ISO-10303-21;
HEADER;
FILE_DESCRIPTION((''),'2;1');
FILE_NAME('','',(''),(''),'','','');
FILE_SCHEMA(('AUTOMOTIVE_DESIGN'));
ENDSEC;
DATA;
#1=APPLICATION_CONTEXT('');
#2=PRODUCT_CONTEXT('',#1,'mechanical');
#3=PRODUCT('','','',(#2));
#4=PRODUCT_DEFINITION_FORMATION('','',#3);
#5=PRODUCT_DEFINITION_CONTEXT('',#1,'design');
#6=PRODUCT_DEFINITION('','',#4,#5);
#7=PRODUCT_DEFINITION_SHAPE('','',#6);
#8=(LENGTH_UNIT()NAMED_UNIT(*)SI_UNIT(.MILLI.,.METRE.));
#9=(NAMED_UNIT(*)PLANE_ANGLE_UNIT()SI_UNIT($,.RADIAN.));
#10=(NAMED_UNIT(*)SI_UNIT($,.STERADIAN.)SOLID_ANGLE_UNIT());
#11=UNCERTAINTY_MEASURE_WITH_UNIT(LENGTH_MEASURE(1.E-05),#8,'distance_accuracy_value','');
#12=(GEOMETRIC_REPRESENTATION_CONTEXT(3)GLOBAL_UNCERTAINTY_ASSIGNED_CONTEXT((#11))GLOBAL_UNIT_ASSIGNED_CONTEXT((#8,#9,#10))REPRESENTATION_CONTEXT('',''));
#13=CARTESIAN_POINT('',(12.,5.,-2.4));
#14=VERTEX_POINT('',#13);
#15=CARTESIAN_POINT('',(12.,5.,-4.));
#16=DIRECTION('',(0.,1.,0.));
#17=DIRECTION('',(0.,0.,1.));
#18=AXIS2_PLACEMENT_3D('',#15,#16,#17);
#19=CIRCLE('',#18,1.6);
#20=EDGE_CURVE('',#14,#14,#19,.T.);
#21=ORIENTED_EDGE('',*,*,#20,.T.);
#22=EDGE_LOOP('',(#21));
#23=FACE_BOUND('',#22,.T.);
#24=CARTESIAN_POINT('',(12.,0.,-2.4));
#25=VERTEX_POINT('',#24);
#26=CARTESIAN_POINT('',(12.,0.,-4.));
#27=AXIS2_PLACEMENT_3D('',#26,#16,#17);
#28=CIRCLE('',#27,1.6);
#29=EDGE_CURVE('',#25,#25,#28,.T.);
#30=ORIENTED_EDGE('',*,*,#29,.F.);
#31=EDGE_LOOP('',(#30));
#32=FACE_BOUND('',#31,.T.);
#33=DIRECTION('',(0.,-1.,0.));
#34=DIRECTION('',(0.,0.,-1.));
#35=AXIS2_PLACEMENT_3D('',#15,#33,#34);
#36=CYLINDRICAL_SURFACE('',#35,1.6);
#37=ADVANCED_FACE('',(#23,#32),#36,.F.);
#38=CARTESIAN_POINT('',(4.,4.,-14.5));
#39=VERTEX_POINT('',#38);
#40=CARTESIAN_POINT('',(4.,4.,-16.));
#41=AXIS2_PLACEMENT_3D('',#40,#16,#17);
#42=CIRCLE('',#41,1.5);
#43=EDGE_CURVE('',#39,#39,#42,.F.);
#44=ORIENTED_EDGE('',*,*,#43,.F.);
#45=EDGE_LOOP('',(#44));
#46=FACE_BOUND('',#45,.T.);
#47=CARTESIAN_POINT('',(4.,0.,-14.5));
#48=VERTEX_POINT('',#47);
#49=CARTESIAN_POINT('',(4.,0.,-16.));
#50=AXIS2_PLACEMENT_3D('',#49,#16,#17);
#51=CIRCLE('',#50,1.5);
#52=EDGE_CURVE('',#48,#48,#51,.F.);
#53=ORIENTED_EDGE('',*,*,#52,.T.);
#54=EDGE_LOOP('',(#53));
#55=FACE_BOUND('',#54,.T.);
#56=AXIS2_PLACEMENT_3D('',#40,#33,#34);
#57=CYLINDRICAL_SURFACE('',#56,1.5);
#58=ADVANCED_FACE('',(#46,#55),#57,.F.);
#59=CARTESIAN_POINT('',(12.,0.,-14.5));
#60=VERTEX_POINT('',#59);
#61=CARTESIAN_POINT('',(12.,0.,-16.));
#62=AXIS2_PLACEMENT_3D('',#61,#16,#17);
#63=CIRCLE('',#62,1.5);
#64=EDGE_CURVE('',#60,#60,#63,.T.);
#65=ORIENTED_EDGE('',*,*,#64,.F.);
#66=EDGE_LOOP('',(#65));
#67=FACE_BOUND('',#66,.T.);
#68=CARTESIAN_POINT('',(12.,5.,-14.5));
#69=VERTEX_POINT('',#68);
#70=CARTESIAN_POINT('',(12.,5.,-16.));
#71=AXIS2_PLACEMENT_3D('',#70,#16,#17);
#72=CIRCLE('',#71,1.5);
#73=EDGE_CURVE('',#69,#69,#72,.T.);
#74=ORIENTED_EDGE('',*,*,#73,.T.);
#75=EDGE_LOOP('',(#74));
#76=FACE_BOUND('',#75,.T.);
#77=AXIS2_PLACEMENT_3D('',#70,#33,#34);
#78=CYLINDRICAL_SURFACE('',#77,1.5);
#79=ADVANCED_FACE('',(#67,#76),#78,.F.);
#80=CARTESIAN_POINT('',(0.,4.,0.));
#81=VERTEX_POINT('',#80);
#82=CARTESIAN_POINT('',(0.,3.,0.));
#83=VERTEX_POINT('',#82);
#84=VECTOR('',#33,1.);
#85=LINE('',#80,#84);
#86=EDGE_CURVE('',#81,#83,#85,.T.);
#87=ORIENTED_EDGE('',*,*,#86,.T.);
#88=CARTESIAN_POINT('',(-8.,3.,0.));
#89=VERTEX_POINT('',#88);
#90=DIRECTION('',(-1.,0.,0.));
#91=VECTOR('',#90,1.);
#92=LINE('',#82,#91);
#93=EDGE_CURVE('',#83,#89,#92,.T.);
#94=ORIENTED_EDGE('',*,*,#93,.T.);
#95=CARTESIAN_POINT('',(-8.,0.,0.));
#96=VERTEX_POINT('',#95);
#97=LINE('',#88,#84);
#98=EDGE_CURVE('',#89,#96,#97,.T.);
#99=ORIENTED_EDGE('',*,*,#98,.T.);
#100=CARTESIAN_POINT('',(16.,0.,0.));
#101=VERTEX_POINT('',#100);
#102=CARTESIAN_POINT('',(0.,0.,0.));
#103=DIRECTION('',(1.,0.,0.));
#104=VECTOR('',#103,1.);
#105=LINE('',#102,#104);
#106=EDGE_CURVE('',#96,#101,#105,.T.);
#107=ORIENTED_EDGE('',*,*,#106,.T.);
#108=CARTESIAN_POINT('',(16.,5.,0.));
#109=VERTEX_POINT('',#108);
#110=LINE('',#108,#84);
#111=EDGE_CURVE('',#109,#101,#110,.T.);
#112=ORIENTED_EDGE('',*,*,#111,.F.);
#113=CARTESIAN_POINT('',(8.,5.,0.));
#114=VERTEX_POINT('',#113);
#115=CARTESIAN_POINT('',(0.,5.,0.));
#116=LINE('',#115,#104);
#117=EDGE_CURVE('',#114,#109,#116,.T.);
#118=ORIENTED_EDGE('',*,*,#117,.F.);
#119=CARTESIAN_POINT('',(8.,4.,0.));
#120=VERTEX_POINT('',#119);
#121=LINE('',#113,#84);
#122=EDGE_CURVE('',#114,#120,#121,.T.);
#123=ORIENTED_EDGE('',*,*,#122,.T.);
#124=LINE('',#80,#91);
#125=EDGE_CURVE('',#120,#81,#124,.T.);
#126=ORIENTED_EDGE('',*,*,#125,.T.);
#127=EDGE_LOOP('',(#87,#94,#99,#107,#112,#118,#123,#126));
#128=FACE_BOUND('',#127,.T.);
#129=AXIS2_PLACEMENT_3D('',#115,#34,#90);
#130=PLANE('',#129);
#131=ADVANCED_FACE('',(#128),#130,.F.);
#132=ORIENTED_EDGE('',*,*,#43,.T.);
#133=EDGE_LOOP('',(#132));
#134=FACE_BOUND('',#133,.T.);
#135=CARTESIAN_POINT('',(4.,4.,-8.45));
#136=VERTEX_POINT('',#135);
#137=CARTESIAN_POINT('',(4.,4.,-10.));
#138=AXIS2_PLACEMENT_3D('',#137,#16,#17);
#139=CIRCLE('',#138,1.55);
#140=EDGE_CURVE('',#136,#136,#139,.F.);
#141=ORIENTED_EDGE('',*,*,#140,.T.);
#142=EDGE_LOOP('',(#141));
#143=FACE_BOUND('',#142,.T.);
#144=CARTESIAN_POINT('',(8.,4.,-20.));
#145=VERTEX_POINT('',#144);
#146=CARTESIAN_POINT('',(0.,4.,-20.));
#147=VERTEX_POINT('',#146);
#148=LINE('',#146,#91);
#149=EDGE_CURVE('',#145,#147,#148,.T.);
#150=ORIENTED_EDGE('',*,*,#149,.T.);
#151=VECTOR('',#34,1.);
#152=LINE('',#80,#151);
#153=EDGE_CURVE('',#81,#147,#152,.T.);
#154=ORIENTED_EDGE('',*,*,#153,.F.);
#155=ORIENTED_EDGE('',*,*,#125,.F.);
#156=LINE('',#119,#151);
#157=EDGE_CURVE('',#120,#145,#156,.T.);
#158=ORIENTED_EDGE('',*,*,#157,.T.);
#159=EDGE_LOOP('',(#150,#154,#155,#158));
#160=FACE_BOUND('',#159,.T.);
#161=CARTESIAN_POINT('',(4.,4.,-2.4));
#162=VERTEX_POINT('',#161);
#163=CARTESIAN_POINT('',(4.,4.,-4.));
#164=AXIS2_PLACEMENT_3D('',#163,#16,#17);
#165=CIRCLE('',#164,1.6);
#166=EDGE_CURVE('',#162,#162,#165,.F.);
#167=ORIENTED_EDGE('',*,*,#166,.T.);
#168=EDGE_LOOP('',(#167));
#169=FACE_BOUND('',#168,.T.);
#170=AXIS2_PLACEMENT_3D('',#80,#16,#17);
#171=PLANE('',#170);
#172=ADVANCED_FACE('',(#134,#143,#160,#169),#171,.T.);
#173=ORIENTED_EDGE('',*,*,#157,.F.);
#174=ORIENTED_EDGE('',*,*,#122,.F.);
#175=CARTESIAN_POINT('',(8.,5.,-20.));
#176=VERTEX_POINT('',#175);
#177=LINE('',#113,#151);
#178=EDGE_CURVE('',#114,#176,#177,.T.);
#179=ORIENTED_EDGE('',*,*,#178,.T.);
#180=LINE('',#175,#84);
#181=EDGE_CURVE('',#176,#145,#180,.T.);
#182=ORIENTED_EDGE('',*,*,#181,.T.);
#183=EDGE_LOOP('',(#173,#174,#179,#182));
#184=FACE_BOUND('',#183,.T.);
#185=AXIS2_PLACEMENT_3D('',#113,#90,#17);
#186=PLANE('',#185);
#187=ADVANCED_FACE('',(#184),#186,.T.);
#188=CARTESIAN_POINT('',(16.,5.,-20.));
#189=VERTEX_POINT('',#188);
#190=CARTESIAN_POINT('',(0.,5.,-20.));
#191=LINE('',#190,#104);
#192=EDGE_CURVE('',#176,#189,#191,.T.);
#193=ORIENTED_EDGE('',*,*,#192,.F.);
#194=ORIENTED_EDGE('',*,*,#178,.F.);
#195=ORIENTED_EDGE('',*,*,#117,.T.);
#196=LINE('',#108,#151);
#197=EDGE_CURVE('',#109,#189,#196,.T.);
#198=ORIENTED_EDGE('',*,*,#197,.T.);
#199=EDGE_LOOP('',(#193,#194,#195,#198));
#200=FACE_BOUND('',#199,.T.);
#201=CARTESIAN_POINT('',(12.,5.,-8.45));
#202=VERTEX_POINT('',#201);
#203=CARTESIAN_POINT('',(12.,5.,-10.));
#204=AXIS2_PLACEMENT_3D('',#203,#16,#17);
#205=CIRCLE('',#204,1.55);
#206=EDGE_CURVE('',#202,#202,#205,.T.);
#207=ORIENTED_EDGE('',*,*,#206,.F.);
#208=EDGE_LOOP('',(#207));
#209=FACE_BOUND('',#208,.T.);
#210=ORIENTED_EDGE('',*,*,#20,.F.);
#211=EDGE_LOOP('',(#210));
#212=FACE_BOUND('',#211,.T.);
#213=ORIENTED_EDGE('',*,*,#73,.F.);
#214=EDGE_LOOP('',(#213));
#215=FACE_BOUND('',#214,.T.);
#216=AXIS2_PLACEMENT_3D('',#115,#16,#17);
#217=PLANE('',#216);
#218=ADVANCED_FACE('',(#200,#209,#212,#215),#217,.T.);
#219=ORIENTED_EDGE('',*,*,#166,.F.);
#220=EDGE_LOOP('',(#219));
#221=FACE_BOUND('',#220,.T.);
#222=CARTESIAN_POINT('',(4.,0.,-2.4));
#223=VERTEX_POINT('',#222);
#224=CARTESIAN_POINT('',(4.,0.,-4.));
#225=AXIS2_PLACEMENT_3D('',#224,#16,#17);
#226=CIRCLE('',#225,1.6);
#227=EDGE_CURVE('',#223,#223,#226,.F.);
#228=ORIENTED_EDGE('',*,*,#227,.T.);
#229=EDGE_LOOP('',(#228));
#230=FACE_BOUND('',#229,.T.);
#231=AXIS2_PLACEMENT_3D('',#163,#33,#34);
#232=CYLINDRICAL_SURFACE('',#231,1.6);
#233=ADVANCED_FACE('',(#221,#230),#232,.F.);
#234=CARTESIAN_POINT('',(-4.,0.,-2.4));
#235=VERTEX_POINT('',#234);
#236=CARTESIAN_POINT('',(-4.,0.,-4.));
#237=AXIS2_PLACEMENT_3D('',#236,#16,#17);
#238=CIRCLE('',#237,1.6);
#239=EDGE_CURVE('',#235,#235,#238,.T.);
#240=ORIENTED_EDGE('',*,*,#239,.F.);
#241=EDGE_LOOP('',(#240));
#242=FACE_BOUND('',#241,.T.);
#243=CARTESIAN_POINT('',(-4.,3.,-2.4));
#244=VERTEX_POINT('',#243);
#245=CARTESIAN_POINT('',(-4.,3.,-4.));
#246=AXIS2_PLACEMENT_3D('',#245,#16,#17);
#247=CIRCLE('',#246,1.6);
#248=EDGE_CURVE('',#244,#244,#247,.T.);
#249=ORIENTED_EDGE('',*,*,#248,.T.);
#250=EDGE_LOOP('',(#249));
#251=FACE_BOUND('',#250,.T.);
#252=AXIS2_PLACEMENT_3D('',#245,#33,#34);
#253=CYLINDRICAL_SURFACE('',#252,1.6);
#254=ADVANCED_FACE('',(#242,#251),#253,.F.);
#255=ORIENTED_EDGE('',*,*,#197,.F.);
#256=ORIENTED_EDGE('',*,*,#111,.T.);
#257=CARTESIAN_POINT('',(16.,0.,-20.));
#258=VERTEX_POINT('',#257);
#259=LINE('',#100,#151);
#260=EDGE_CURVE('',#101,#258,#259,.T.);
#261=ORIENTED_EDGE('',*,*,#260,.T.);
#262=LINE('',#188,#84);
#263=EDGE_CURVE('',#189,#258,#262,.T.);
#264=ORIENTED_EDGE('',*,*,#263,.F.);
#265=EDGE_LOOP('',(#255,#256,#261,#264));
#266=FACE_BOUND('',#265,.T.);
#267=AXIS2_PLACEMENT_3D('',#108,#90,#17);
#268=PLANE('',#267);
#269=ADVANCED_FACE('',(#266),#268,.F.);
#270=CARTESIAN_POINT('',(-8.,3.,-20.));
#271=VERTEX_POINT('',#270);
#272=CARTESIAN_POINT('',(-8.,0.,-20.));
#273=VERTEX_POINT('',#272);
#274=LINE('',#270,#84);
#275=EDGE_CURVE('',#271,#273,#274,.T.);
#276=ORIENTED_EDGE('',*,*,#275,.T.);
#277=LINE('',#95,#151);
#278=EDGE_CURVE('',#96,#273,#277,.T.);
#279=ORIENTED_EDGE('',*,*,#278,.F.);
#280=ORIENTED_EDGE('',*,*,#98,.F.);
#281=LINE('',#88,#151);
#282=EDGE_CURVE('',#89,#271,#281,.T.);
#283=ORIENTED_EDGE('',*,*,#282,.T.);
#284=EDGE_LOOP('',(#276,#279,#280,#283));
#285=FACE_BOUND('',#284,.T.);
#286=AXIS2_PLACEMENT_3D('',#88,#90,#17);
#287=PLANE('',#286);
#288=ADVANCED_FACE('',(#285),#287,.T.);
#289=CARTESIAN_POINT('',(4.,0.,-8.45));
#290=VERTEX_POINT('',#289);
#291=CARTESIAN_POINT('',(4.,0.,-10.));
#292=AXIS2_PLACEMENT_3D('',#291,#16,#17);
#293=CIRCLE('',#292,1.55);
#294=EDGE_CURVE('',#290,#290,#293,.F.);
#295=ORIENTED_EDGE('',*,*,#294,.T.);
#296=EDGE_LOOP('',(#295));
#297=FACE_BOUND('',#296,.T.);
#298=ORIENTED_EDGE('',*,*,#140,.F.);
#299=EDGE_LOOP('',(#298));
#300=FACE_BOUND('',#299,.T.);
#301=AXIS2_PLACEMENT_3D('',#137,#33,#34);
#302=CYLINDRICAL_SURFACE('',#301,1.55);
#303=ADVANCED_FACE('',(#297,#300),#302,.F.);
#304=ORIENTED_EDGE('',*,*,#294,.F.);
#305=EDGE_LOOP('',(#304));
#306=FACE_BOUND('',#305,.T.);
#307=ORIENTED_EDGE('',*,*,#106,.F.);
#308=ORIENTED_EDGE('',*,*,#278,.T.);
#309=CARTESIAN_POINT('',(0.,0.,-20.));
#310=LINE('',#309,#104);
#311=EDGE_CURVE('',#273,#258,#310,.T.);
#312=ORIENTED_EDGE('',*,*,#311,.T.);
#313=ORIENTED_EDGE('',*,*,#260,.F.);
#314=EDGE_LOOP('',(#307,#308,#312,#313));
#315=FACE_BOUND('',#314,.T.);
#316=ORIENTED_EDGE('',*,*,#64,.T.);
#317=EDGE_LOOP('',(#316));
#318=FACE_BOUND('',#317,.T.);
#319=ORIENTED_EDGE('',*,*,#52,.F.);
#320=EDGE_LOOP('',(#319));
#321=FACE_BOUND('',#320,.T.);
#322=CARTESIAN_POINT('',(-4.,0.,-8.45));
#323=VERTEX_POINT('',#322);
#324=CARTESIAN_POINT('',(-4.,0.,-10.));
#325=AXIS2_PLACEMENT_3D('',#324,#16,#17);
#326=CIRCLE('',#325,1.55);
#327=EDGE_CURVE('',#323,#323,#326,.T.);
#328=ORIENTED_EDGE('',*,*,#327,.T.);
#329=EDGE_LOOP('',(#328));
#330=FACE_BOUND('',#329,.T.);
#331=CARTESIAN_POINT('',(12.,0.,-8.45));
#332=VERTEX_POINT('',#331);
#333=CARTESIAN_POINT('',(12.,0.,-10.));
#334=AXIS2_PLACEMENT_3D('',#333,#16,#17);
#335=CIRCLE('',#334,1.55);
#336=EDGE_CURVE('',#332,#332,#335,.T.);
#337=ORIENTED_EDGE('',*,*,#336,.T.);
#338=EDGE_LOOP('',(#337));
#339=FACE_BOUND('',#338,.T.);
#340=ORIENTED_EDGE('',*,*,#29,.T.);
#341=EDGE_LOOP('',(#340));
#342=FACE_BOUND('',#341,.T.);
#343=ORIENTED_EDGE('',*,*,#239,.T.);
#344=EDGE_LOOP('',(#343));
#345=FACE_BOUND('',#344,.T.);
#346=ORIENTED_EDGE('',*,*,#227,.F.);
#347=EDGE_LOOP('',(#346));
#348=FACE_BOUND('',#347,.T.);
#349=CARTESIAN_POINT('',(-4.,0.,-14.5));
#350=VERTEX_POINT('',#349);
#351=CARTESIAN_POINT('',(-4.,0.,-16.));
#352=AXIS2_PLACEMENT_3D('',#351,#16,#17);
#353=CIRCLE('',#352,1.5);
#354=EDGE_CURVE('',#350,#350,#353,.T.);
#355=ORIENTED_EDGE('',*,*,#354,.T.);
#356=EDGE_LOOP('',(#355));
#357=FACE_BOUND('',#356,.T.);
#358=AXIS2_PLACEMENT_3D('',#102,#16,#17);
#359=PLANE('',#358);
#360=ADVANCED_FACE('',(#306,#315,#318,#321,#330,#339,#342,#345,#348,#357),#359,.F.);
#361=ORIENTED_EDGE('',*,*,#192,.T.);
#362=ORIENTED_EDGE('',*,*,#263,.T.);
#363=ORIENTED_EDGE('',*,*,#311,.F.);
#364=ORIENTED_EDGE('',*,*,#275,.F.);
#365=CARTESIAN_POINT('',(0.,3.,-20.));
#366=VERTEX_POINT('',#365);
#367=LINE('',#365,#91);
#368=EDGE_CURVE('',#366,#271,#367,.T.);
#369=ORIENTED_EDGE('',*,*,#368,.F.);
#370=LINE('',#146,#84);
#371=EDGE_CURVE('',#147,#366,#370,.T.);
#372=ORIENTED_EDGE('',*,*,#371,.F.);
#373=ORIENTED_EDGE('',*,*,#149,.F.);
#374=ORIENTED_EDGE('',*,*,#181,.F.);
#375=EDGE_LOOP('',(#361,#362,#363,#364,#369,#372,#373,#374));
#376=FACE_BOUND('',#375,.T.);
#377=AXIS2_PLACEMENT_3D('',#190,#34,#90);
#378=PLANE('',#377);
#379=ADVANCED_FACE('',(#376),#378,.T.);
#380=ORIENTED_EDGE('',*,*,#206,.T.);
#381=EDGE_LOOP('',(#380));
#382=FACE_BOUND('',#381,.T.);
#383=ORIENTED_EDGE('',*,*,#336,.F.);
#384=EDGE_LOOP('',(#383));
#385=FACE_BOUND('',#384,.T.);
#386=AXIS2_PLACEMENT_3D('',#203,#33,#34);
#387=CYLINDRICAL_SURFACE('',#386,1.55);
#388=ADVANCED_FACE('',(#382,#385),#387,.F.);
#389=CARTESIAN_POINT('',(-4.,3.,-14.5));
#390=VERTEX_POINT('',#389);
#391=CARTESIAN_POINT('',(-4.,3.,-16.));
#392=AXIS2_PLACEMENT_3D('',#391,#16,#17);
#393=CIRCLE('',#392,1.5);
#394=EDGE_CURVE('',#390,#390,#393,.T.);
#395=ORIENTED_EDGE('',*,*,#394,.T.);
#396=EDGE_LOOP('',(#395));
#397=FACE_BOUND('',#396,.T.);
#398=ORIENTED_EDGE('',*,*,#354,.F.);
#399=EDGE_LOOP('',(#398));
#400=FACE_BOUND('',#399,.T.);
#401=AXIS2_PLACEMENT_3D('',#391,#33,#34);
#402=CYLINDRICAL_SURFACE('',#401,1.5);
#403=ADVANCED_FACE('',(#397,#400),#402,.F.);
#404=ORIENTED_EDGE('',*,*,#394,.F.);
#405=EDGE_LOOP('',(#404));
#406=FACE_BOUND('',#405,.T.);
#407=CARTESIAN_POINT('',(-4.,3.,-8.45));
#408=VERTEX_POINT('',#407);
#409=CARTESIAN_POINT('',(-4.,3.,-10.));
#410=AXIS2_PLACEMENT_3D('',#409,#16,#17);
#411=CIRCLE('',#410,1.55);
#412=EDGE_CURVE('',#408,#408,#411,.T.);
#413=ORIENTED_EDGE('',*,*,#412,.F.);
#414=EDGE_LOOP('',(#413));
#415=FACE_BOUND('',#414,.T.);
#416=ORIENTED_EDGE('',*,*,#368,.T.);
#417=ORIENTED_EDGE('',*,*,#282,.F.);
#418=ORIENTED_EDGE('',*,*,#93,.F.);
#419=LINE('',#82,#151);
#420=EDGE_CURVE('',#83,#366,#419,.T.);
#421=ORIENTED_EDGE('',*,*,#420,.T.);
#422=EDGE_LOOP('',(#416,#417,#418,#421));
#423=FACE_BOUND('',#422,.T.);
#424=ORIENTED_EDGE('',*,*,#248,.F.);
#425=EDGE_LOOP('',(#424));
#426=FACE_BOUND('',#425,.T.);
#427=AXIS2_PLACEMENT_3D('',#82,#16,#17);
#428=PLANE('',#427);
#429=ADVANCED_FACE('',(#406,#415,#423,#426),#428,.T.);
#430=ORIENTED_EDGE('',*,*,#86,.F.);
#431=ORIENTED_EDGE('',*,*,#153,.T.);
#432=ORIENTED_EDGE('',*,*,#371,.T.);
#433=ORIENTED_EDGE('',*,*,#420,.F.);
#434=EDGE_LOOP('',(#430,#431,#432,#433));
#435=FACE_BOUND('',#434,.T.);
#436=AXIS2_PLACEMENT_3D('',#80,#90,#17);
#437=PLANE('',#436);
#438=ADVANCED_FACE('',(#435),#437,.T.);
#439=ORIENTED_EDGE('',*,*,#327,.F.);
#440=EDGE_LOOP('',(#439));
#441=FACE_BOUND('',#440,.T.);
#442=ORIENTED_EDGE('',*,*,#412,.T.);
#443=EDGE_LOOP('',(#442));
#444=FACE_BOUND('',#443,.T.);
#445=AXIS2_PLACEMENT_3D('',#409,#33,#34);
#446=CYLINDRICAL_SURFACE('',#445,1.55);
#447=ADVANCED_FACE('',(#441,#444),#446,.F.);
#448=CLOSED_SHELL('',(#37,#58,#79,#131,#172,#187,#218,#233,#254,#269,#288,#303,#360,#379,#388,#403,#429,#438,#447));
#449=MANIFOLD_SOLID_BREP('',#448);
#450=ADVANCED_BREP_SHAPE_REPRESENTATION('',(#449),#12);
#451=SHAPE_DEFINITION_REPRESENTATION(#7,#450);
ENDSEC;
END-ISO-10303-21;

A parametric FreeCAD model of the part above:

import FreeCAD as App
import Part
import Sketcher

V = App.Vector


def add_polygon(sketch, points):
    """Adds a closed chain of lines whose ends are joined by coincident constraints."""
    first, n = sketch.GeometryCount, len(points)
    for a, b in zip(points, points[1:] + points[:1]):
        sketch.addGeometry(Part.LineSegment(App.Vector(*a, 0), App.Vector(*b, 0)), False)
    for i in range(n):
        sketch.addConstraint(Sketcher.Constraint("Coincident", first + i, 2, first + (i + 1) % n, 1))

doc = App.newDocument("Part")
body = doc.addObject("PartDesign::Body", "Body")

sketch1 = body.newObject("Sketcher::SketchObject", "Sketch")
sketch1.AttachmentSupport = (doc.getObject("XZ_Plane"), [""])
sketch1.MapMode = "FlatFace"
add_polygon(sketch1, [(8, -20), (8, 0), (16, 0), (16, -20)])
sketch1.addGeometry(Part.Circle(V(12, -4, 0), V(0, 0, 1), 1.6), False)
sketch1.addGeometry(Part.Circle(V(12, -10, 0), V(0, 0, 1), 1.6), False)
sketch1.addGeometry(Part.Circle(V(12, -16, 0), V(0, 0, 1), 1.5), False)
sketch1.addConstraint([
    Sketcher.Constraint("Vertical", 0),
    Sketcher.Constraint("Horizontal", 1),
    Sketcher.Constraint("Vertical", 2),
    Sketcher.Constraint("Horizontal", 3),
    Sketcher.Constraint("PointOnObject", 0, 2, -1),
    Sketcher.Constraint("Vertical", 4, 3, 5, 3),
    Sketcher.Constraint("Vertical", 5, 3, 6, 3),
    Sketcher.Constraint("Diameter", 6, 3.0),
    Sketcher.Constraint("Diameter", 4, 3.2),
    Sketcher.Constraint("Diameter", 5, 3.1),
    Sketcher.Constraint("DistanceX", 1, 1, 1, 2, 8.0),
    Sketcher.Constraint("DistanceY", 0, 1, 0, 2, 20.0),
    Sketcher.Constraint("DistanceX", -1, 1, 4, 3, 12.0),
    Sketcher.Constraint("DistanceY", 4, 3, -1, 1, 4.0),
    Sketcher.Constraint("DistanceY", 5, 3, -1, 1, 10.0),
    Sketcher.Constraint("DistanceY", 6, 3, -1, 1, 16.0),
    Sketcher.Constraint("DistanceX", -1, 1, 0, 2, 8.0),
])
pad1 = body.newObject("PartDesign::Pad", "Pad")
pad1.Profile = sketch1
pad1.Length = 5
pad1.Reversed = True

sketch2 = body.newObject("Sketcher::SketchObject", "Sketch001")
sketch2.AttachmentSupport = (doc.getObject("XZ_Plane"), [""])
sketch2.MapMode = "FlatFace"
add_polygon(sketch2, [(0, -20), (0, 0), (8, 0), (8, -20)])
sketch2.addGeometry(Part.Circle(V(4, -4, 0), V(0, 0, 1), 1.6), False)
sketch2.addGeometry(Part.Circle(V(4, -10, 0), V(0, 0, 1), 1.6), False)
sketch2.addGeometry(Part.Circle(V(4, -16, 0), V(0, 0, 1), 1.5), False)
sketch2.addConstraint([
    Sketcher.Constraint("Vertical", 0),
    Sketcher.Constraint("Horizontal", 1),
    Sketcher.Constraint("Vertical", 2),
    Sketcher.Constraint("Horizontal", 3),
    Sketcher.Constraint("Coincident", 0, 2, -1, 1),
    Sketcher.Constraint("Vertical", 4, 3, 5, 3),
    Sketcher.Constraint("Vertical", 5, 3, 6, 3),
    Sketcher.Constraint("Diameter", 6, 3.0),
    Sketcher.Constraint("Diameter", 4, 3.2),
    Sketcher.Constraint("Diameter", 5, 3.1),
    Sketcher.Constraint("DistanceX", 1, 1, 1, 2, 8.0),
    Sketcher.Constraint("DistanceY", 0, 1, 0, 2, 20.0),
    Sketcher.Constraint("DistanceX", -1, 1, 4, 3, 4.0),
    Sketcher.Constraint("DistanceY", 4, 3, -1, 1, 4.0),
    Sketcher.Constraint("DistanceY", 5, 3, -1, 1, 10.0),
    Sketcher.Constraint("DistanceY", 6, 3, -1, 1, 16.0),
])
pad2 = body.newObject("PartDesign::Pad", "Pad001")
pad2.Profile = sketch2
pad2.Length = 4
pad2.Reversed = True

sketch3 = body.newObject("Sketcher::SketchObject", "Sketch002")
sketch3.AttachmentSupport = (doc.getObject("XZ_Plane"), [""])
sketch3.MapMode = "FlatFace"
add_polygon(sketch3, [(-8, -20), (-8, 0), (0, 0), (0, -20)])
sketch3.addGeometry(Part.Circle(V(-4, -4, 0), V(0, 0, 1), 1.6), False)
sketch3.addGeometry(Part.Circle(V(-4, -10, 0), V(0, 0, 1), 1.6), False)
sketch3.addGeometry(Part.Circle(V(-4, -16, 0), V(0, 0, 1), 1.5), False)
sketch3.addConstraint([
    Sketcher.Constraint("Vertical", 0),
    Sketcher.Constraint("Horizontal", 1),
    Sketcher.Constraint("Vertical", 2),
    Sketcher.Constraint("Horizontal", 3),
    Sketcher.Constraint("Coincident", 1, 2, -1, 1),
    Sketcher.Constraint("Vertical", 4, 3, 5, 3),
    Sketcher.Constraint("Vertical", 5, 3, 6, 3),
    Sketcher.Constraint("Diameter", 6, 3.0),
    Sketcher.Constraint("Diameter", 4, 3.2),
    Sketcher.Constraint("Diameter", 5, 3.1),
    Sketcher.Constraint("DistanceX", 1, 1, 1, 2, 8.0),
    Sketcher.Constraint("DistanceY", 0, 1, 0, 2, 20.0),
    Sketcher.Constraint("DistanceX", 4, 3, -1, 1, 4.0),
    Sketcher.Constraint("DistanceY", 4, 3, -1, 1, 4.0),
    Sketcher.Constraint("DistanceY", 5, 3, -1, 1, 10.0),
    Sketcher.Constraint("DistanceY", 6, 3, -1, 1, 16.0),
])
pad3 = body.newObject("PartDesign::Pad", "Pad002")
pad3.Profile = sketch3
pad3.Length = 3
pad3.Reversed = True

doc.recompute()
